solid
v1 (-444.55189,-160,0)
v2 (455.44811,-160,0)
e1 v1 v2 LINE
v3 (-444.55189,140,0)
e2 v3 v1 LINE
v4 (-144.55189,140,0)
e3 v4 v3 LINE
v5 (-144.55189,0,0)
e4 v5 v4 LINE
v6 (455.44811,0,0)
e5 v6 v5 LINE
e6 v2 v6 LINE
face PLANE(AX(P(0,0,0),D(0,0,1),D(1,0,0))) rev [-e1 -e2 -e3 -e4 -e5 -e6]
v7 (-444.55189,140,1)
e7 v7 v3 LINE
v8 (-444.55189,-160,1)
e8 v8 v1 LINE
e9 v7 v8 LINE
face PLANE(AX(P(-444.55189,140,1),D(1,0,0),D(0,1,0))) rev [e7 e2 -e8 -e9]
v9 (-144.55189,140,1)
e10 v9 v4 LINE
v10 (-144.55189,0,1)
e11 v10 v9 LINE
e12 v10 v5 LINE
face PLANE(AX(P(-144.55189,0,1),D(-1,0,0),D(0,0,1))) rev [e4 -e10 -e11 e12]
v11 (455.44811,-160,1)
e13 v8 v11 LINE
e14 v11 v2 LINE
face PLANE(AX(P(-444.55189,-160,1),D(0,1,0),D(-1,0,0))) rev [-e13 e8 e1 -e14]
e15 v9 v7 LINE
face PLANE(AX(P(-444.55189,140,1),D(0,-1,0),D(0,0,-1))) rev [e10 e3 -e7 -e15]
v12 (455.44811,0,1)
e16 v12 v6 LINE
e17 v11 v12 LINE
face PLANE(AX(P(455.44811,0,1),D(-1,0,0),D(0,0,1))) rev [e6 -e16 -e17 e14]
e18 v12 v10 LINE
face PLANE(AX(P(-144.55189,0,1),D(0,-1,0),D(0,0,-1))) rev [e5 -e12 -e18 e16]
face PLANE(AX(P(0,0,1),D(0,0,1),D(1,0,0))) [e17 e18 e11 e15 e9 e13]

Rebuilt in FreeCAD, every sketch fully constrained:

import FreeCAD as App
import Part
import Sketcher

doc = App.newDocument("Part")
body = doc.addObject("PartDesign::Body", "Body")

# Sketch on XY plane
sketch1 = doc.addObject("Sketcher::SketchObject", "Sketch")
body.addObject(sketch1)
sketch1.AttachmentSupport = (doc.XY_Plane, [""])
sketch1.MapMode = "FlatFace"
sketch1.addGeometry(Part.LineSegment(App.Vector(-445, 140, 0), App.Vector(-445, -160, 0)), False)
sketch1.addGeometry(Part.LineSegment(App.Vector(-445, -160, 0), App.Vector(455, -160, 0)), False)
sketch1.addGeometry(Part.LineSegment(App.Vector(455, -160, 0), App.Vector(455, 0, 0)), False)
sketch1.addGeometry(Part.LineSegment(App.Vector(455, 0, 0), App.Vector(-145, 0, 0)), False)
sketch1.addGeometry(Part.LineSegment(App.Vector(-145, 0, 0), App.Vector(-145, 140, 0)), False)
sketch1.addGeometry(Part.LineSegment(App.Vector(-145, 140, 0), App.Vector(-445, 140, 0)), False)
sketch1.addConstraint(Sketcher.Constraint("Coincident", 0, 2, 1, 1))
sketch1.addConstraint(Sketcher.Constraint("Coincident", 1, 2, 2, 1))
sketch1.addConstraint(Sketcher.Constraint("Coincident", 2, 2, 3, 1))
sketch1.addConstraint(Sketcher.Constraint("Coincident", 3, 2, 4, 1))
sketch1.addConstraint(Sketcher.Constraint("Coincident", 4, 2, 5, 1))
sketch1.addConstraint(Sketcher.Constraint("Coincident", 5, 2, 0, 1))
sketch1.addConstraint(Sketcher.Constraint("Vertical", 0))
sketch1.addConstraint(Sketcher.Constraint("Horizontal", 1))
sketch1.addConstraint(Sketcher.Constraint("Vertical", 2))
sketch1.addConstraint(Sketcher.Constraint("Horizontal", 3))
sketch1.addConstraint(Sketcher.Constraint("Vertical", 4))
sketch1.addConstraint(Sketcher.Constraint("Horizontal", 5))
sketch1.addConstraint(Sketcher.Constraint("PointOnObject", 2, 2, -1))
sketch1.addConstraint(Sketcher.Constraint("Equal", 5, 0))
sketch1.addConstraint(Sketcher.Constraint("DistanceX", 1, 1, 1, 2, 900.0))
sketch1.addConstraint(Sketcher.Constraint("DistanceX", 3, 2, 3, 1, 600.0))
sketch1.addConstraint(Sketcher.Constraint("DistanceY", 2, 1, 2, 2, 160.0))
sketch1.addConstraint(Sketcher.Constraint("DistanceX", 0, 2, -1, 1, 444.55189))
pad1 = doc.addObject("PartDesign::Pad", "Pad")
body.addObject(pad1)
pad1.Profile = sketch1
pad1.Length = 1

doc.recompute()
